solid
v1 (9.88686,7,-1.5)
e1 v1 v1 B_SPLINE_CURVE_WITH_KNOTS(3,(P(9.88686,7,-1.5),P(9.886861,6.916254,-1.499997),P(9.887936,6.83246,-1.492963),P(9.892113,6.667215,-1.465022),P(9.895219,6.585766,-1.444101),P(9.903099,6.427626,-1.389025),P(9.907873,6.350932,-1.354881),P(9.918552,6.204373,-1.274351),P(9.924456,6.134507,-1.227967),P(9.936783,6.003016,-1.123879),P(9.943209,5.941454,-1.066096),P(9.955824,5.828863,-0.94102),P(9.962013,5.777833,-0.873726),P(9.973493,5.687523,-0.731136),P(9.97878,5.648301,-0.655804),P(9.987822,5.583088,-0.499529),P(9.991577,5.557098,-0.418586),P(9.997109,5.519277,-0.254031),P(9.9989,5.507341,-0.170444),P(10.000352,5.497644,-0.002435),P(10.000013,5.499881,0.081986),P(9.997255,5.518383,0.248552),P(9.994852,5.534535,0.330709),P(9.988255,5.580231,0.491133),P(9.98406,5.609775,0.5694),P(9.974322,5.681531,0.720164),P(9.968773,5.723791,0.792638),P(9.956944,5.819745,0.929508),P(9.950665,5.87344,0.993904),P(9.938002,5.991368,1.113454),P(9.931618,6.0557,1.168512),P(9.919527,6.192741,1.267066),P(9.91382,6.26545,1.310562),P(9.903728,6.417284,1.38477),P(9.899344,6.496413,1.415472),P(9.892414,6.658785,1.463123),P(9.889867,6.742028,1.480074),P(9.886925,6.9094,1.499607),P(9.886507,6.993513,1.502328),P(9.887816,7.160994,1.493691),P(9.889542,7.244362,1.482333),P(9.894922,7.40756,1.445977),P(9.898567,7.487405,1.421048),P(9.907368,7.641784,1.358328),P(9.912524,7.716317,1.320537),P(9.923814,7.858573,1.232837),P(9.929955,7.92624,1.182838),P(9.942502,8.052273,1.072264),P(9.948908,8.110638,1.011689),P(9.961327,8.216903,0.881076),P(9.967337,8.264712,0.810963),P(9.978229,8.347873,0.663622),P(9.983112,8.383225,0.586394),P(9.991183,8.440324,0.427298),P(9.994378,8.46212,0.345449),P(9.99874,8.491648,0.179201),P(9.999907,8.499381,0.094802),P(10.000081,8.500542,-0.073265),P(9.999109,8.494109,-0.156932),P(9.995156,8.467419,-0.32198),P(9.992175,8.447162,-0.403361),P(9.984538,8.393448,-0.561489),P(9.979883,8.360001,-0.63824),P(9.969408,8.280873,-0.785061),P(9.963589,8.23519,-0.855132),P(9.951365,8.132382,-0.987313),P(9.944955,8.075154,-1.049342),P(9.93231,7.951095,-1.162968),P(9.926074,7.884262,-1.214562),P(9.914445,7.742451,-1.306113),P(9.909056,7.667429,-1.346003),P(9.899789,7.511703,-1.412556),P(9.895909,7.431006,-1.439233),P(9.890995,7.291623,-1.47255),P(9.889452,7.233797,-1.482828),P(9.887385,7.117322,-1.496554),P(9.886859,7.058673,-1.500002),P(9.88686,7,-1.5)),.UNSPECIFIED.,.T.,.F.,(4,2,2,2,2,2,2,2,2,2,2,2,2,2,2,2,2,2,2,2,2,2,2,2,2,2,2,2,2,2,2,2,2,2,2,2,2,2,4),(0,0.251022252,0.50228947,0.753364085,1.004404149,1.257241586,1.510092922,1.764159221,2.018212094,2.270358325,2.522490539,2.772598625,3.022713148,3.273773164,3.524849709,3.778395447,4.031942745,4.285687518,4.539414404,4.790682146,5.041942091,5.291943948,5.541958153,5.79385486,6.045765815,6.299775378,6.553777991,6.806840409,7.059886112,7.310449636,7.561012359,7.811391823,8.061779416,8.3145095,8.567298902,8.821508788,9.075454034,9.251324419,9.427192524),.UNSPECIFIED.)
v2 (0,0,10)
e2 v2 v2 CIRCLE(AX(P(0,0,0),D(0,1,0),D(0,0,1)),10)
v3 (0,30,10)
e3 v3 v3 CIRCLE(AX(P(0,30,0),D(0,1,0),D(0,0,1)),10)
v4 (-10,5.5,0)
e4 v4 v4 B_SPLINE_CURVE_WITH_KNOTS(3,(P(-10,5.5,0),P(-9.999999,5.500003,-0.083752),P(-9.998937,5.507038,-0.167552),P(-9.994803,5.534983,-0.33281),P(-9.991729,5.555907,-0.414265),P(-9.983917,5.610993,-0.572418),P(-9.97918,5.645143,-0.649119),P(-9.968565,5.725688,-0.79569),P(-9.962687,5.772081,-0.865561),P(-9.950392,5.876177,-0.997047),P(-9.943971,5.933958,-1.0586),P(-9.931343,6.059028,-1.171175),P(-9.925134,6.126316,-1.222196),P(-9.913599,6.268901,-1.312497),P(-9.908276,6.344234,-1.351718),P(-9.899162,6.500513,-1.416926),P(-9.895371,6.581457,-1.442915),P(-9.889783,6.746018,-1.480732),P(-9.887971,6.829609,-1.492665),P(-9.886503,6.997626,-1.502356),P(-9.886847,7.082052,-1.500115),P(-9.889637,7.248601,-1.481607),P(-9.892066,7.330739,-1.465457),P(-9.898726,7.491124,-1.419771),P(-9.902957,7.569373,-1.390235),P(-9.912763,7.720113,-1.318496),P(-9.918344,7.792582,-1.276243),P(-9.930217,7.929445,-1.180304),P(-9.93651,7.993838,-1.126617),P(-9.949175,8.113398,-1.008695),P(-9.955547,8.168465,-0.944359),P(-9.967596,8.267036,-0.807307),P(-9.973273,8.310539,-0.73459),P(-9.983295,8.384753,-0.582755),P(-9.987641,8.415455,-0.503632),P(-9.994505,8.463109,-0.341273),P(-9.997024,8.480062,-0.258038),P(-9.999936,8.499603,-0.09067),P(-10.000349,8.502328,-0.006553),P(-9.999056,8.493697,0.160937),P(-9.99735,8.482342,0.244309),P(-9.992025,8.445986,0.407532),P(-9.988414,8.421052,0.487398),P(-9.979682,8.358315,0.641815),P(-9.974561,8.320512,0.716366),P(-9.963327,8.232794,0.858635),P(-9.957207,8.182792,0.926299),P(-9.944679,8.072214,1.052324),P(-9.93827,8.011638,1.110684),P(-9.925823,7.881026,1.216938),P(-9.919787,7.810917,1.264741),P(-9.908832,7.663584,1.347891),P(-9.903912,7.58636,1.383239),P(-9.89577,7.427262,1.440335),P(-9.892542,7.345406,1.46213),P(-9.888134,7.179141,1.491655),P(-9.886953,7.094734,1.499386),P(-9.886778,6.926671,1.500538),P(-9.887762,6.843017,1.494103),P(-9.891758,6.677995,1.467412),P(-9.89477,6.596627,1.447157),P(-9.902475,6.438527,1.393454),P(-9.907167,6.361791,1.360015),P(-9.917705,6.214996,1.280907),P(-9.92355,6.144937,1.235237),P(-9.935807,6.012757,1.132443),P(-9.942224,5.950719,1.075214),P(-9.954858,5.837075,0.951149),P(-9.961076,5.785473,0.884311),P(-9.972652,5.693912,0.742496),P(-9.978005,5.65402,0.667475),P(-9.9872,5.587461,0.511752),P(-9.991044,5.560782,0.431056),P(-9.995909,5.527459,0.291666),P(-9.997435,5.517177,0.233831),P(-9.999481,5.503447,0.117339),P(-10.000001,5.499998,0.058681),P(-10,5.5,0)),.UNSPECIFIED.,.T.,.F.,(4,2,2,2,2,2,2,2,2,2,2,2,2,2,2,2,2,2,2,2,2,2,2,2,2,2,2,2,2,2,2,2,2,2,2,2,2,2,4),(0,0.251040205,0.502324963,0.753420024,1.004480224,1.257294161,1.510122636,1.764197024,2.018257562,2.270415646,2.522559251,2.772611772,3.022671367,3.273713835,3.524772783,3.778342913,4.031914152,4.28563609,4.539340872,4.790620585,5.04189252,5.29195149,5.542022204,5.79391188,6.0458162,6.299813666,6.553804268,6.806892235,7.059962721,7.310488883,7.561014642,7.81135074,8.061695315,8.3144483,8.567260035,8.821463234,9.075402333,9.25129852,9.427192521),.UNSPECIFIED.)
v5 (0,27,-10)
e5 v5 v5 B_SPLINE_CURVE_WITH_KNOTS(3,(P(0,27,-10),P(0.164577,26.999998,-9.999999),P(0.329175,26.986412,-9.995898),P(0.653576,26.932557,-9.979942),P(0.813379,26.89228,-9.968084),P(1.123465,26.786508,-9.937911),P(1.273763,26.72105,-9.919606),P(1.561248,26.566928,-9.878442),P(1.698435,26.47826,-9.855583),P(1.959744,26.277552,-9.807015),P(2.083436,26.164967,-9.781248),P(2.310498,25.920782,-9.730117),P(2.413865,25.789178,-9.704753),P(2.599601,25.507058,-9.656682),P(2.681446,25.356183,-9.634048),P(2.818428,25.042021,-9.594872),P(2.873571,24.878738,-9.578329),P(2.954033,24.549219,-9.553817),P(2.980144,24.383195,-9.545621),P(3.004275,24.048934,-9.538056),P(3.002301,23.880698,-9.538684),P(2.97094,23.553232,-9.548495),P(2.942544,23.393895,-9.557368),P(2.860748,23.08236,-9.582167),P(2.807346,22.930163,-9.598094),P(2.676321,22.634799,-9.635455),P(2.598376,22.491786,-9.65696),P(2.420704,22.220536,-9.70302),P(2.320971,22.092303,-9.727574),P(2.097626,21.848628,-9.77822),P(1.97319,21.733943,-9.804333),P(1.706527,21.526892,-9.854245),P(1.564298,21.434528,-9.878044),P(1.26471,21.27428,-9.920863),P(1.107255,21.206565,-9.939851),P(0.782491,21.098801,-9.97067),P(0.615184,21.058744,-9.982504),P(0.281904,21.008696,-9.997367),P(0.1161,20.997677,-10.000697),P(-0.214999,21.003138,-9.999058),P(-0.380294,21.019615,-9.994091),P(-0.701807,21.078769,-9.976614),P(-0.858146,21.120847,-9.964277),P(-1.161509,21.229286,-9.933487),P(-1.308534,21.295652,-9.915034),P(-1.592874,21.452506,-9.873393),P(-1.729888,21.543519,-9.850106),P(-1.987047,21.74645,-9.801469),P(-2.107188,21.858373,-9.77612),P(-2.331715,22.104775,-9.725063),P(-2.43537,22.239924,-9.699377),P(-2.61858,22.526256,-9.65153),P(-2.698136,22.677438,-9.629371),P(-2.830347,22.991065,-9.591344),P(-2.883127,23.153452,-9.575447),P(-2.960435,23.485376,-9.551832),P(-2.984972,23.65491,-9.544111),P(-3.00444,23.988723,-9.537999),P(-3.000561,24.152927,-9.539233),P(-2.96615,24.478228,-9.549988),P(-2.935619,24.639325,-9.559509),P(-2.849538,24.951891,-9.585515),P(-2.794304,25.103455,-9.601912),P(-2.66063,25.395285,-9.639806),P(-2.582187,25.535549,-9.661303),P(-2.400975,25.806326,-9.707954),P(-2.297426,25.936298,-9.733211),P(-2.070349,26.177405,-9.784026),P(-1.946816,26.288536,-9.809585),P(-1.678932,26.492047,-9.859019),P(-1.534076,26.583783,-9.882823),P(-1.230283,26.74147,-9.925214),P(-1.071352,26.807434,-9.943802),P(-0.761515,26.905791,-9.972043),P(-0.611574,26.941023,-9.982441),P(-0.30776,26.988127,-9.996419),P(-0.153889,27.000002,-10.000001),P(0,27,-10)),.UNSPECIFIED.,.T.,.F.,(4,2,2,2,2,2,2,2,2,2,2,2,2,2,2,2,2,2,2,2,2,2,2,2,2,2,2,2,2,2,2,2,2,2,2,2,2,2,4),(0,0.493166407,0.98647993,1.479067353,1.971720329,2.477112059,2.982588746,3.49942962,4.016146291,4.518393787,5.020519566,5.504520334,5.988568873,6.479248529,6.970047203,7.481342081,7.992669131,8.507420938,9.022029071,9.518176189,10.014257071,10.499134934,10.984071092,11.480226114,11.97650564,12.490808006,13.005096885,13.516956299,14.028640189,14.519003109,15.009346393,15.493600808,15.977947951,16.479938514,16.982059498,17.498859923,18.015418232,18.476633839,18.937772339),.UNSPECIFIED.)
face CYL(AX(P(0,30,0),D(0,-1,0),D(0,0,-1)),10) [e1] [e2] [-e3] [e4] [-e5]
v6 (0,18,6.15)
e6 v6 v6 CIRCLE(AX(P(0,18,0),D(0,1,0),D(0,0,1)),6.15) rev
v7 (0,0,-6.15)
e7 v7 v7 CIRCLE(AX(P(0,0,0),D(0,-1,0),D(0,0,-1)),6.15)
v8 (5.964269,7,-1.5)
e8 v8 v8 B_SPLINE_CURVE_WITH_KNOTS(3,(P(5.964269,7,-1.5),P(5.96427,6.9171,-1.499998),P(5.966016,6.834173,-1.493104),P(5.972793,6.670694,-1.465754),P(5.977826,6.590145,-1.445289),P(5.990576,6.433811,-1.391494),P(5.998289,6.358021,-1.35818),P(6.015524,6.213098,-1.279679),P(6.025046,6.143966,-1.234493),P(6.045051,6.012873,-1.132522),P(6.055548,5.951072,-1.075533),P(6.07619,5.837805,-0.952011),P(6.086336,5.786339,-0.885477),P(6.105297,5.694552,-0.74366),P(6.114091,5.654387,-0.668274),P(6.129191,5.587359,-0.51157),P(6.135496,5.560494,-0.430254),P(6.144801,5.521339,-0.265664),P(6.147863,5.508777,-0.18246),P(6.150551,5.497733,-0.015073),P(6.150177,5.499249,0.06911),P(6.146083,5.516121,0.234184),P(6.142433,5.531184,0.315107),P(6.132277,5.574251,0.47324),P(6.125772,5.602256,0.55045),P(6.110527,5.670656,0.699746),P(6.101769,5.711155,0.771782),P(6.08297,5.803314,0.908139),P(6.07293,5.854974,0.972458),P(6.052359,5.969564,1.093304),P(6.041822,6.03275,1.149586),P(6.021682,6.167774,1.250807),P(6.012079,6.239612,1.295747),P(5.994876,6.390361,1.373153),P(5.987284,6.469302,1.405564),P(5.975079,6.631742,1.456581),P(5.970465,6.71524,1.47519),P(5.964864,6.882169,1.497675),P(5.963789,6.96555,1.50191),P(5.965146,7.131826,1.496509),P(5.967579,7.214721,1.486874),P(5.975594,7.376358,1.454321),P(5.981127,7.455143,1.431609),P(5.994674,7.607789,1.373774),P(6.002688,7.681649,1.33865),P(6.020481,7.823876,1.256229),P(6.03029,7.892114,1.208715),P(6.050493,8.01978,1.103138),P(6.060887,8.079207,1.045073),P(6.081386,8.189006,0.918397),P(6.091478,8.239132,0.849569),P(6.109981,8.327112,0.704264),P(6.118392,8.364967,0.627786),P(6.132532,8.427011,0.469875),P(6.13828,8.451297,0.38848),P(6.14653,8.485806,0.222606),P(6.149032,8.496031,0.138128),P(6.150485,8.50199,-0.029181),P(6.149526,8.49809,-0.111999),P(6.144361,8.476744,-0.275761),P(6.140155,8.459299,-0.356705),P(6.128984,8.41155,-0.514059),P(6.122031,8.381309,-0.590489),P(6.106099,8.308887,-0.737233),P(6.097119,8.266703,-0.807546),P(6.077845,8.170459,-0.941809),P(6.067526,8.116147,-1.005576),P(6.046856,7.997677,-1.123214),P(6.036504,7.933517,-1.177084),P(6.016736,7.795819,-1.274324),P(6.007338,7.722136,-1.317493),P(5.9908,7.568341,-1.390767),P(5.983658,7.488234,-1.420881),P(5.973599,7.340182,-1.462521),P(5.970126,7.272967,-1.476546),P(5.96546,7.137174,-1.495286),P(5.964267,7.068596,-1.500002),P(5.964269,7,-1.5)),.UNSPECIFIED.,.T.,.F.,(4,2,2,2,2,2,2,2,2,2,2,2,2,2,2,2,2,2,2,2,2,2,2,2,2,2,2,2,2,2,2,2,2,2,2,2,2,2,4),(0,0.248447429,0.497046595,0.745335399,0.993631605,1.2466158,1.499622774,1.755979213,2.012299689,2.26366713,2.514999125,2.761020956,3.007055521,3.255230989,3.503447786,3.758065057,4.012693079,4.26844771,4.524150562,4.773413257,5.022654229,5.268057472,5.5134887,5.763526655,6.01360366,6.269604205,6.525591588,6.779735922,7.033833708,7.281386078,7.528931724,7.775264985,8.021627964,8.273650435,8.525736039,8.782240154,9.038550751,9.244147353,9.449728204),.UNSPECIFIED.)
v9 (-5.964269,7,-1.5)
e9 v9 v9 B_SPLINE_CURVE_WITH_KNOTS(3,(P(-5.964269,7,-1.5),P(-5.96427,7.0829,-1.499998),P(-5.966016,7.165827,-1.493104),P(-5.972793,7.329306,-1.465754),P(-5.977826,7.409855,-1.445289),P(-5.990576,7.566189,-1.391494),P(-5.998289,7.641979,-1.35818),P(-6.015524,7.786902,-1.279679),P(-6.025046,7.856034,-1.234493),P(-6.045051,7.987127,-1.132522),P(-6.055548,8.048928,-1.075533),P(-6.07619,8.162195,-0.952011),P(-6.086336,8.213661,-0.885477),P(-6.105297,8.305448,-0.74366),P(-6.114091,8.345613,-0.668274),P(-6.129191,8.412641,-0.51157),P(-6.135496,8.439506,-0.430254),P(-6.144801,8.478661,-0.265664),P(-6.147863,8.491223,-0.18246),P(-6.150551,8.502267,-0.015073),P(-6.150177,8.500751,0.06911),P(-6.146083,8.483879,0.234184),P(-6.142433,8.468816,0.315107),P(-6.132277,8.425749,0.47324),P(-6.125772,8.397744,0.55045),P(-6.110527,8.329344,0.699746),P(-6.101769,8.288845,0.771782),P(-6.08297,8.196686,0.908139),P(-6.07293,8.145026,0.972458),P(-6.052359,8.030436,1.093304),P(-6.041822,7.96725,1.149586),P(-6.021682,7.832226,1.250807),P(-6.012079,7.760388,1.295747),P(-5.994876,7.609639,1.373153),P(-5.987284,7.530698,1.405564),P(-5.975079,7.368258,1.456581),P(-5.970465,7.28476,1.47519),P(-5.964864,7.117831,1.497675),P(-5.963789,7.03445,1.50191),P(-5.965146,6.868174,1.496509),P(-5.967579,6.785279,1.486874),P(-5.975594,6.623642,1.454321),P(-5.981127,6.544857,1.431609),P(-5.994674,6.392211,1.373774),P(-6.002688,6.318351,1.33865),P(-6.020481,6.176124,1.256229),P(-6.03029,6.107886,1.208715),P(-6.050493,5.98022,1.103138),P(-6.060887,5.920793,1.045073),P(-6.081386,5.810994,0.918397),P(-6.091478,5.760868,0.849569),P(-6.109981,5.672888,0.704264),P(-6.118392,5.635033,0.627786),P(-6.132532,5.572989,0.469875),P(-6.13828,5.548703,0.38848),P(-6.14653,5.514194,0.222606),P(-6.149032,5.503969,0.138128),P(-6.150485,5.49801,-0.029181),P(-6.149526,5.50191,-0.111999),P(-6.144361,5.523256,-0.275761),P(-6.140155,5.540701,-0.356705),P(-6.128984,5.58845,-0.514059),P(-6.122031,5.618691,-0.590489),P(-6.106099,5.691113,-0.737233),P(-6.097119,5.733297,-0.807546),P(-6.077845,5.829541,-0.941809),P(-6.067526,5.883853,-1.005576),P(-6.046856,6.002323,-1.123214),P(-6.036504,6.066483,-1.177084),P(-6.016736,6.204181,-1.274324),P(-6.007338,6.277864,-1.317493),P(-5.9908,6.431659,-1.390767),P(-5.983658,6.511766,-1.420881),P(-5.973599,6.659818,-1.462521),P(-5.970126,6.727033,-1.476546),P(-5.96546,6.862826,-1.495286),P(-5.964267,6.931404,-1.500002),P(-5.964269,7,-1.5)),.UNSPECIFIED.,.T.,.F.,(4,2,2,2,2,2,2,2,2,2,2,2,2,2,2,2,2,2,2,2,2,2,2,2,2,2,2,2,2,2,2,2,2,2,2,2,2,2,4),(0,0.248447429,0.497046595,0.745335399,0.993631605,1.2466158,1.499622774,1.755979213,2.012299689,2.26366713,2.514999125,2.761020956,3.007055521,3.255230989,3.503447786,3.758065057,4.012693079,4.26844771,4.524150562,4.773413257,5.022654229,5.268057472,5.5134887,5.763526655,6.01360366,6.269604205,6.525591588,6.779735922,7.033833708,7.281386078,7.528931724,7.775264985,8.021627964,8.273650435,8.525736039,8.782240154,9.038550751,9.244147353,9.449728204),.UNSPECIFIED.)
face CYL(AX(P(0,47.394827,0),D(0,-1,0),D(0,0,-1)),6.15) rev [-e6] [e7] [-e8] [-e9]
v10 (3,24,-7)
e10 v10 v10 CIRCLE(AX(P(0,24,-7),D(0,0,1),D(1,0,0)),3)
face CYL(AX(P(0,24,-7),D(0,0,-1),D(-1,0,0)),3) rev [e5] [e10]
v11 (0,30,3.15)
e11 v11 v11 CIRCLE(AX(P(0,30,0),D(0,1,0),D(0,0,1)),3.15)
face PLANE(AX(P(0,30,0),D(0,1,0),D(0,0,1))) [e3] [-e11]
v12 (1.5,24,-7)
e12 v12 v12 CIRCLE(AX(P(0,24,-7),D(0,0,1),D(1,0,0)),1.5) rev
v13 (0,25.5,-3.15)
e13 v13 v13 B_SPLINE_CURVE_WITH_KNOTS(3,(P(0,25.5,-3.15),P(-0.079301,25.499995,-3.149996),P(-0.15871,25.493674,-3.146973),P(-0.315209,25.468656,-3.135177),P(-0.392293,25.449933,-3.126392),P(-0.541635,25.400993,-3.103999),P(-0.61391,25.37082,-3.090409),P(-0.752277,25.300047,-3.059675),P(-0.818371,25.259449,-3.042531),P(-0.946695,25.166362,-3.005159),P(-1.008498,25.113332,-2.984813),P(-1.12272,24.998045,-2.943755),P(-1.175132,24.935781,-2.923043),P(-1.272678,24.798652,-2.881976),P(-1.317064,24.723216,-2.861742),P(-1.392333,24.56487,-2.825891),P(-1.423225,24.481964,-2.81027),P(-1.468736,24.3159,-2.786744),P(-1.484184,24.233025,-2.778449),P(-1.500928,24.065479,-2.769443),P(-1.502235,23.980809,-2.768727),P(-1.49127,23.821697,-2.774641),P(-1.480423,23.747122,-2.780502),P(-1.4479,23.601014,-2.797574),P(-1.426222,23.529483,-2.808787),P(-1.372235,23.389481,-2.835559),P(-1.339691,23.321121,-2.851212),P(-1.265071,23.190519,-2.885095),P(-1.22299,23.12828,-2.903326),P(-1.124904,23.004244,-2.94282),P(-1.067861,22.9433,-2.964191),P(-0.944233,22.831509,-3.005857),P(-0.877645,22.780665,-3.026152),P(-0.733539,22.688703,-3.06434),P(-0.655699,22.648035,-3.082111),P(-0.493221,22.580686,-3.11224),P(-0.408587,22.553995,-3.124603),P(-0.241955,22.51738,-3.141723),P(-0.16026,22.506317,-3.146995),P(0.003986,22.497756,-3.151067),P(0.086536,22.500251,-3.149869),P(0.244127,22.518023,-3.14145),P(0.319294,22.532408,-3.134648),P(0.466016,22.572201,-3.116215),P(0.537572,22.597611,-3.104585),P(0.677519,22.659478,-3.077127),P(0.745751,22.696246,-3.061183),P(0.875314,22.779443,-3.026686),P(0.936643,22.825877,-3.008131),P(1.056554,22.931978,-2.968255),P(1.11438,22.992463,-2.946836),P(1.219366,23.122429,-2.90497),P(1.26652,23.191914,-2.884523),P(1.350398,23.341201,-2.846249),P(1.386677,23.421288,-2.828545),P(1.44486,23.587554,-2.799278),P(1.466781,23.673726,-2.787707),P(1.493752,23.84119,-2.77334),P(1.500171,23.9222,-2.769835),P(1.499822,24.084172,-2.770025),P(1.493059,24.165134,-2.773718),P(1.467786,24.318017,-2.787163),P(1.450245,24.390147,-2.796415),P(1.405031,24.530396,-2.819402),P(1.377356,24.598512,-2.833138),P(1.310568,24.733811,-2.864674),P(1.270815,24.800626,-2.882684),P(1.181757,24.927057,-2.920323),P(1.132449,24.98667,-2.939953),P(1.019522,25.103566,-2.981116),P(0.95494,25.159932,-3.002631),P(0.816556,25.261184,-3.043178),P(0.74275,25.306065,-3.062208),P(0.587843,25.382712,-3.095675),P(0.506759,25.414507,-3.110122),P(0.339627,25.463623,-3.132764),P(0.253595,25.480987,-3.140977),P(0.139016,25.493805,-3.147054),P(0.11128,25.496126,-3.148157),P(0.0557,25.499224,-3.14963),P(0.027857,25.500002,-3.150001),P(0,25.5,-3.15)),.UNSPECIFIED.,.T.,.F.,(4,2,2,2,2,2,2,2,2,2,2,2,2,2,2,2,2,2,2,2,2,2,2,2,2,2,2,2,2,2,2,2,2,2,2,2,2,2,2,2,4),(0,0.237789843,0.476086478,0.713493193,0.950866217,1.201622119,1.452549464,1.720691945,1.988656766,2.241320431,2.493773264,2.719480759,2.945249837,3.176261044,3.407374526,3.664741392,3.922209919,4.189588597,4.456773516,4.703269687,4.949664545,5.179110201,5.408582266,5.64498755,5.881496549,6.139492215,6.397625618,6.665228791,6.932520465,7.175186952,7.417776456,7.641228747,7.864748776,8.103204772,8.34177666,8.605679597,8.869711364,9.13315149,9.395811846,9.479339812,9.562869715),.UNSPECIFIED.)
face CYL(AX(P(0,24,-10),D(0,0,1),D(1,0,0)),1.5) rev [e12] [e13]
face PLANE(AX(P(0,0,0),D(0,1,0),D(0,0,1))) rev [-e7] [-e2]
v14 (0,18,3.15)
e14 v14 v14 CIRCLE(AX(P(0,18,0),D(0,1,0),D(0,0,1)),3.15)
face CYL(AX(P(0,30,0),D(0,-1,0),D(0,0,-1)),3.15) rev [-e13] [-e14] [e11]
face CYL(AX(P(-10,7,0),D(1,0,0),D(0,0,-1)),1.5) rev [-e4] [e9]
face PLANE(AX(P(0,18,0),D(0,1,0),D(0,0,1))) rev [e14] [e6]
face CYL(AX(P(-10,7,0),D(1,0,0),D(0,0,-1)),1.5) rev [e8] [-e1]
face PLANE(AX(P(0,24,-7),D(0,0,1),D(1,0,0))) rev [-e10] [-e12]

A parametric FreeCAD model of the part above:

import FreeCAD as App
import Part
import Sketcher
from FreeCAD import Vector
Q = App.Units.Quantity

doc = App.newDocument("Part")
params = doc.addObject("Spreadsheet::Sheet", "Params")
for row, (alias, value) in enumerate([
    ("sketch1_diameter", "20 mm"),
    ("sketch1_diameter2", "6.3 mm"),
    ("pad1_length", "30 mm"),
    ("sketch2_diameter", "3 mm"),
    ("sketch3_diameter", "3 mm"),
    ("sketch4_diameter", "12.3 mm"),
    ("pocket3_length", "18 mm"),
    ("sketch5_diameter", "6 mm"),
    ("pocket4_length", "3 mm"),
], start=1):
    params.set(f"A{row}", alias)
    params.set(f"B{row}", "=" + value)
    params.setAlias(f"B{row}", alias)

body = doc.addObject("PartDesign::Body", "Body")

# Sketch on XZ plane
sketch1 = doc.addObject("Sketcher::SketchObject", "Sketch")
body.addObject(sketch1)
sketch1.AttachmentSupport = (doc.XZ_Plane, [""])
sketch1.MapMode = "FlatFace"
sketch1.addGeometry([
    Part.Circle(Vector(0, 0, 0), Vector(0, 0, 1), 10),
    Part.Circle(Vector(0, 0, 0), Vector(0, 0, 1), 3.1),
], False)
sketch1.addConstraint([
    Sketcher.Constraint("Coincident", 0, 3, -1, 1),
    Sketcher.Constraint("Coincident", 1, 3, -1, 1),
    Sketcher.Constraint("Diameter", 0, Q("20 mm")),
    Sketcher.Constraint("Diameter", 1, Q("6.3 mm")),
])
sketch1.setExpression("Constraints[2]", "Params.sketch1_diameter")
sketch1.setExpression("Constraints[3]", "Params.sketch1_diameter2")
pad1 = doc.addObject("PartDesign::Pad", "Pad")
body.addObject(pad1)
pad1.Profile = sketch1
pad1.setExpression("Length", "Params.pad1_length")
pad1.Reversed = True

# Sketch on YZ plane
sketch2 = doc.addObject("Sketcher::SketchObject", "Sketch001")
body.addObject(sketch2)
sketch2.AttachmentSupport = (doc.YZ_Plane, [""])
sketch2.MapMode = "FlatFace"
sketch2.addGeometry(Part.Circle(Vector(7, 0, 0), Vector(0, 0, 1), 1.5), False)
sketch2.addConstraint([
    Sketcher.Constraint("PointOnObject", 0, 3, -1),
    Sketcher.Constraint("Diameter", 0, Q("3 mm")),
    Sketcher.Constraint("DistanceX", -1, 1, 0, 3, Q("7 mm")),
])
sketch2.setExpression("Constraints[1]", "Params.sketch2_diameter")
pocket1 = doc.addObject("PartDesign::Pocket", "Pocket")
body.addObject(pocket1)
pocket1.Profile = sketch2
pocket1.Type = "ThroughAll"
pocket1.Midplane = True

# Sketch on XY plane
sketch3 = doc.addObject("Sketcher::SketchObject", "Sketch002")
body.addObject(sketch3)
sketch3.AttachmentSupport = (doc.XY_Plane, [""])
sketch3.MapMode = "FlatFace"
sketch3.addGeometry(Part.Circle(Vector(0, 24, 0), Vector(0, 0, 1), 1.5), False)
sketch3.addConstraint([
    Sketcher.Constraint("PointOnObject", 0, 3, -2),
    Sketcher.Constraint("Diameter", 0, Q("3 mm")),
    Sketcher.Constraint("DistanceY", -1, 1, 0, 3, Q("24 mm")),
])
sketch3.setExpression("Constraints[1]", "Params.sketch3_diameter")
pocket2 = doc.addObject("PartDesign::Pocket", "Pocket001")
body.addObject(pocket2)
pocket2.Profile = sketch3
pocket2.Type = "ThroughAll"

# Sketch on XZ plane
sketch4 = doc.addObject("Sketcher::SketchObject", "Sketch003")
body.addObject(sketch4)
sketch4.AttachmentSupport = (doc.XZ_Plane, [""])
sketch4.MapMode = "FlatFace"
sketch4.addGeometry(Part.Circle(Vector(0, 0, 0), Vector(0, 0, 1), 6), False)
sketch4.addConstraint([
    Sketcher.Constraint("Coincident", 0, 3, -1, 1),
    Sketcher.Constraint("Diameter", 0, Q("12.3 mm")),
])
sketch4.setExpression("Constraints[1]", "Params.sketch4_diameter")
pocket3 = doc.addObject("PartDesign::Pocket", "Pocket002")
body.addObject(pocket3)
pocket3.Profile = sketch4
pocket3.setExpression("Length", "Params.pocket3_length")

# Sketch on XY plane
sketch5 = doc.addObject("Sketcher::SketchObject", "Sketch004")
body.addObject(sketch5)
sketch5.AttachmentSupport = (doc.XY_Plane, [""])
sketch5.MapMode = "FlatFace"
sketch5.AttachmentOffset = App.Placement(Vector(0, 0, -10), App.Rotation())
sketch5.addGeometry(Part.Circle(Vector(0, 24, 0), Vector(0, 0, 1), 3), False)
sketch5.addConstraint([
    Sketcher.Constraint("PointOnObject", 0, 3, -2),
    Sketcher.Constraint("Diameter", 0, Q("6 mm")),
    Sketcher.Constraint("DistanceY", -1, 1, 0, 3, Q("24 mm")),
])
sketch5.setExpression("Constraints[1]", "Params.sketch5_diameter")
pocket4 = doc.addObject("PartDesign::Pocket", "Pocket003")
body.addObject(pocket4)
pocket4.Profile = sketch5
pocket4.setExpression("Length", "Params.pocket4_length")
pocket4.Reversed = True

doc.recompute()
